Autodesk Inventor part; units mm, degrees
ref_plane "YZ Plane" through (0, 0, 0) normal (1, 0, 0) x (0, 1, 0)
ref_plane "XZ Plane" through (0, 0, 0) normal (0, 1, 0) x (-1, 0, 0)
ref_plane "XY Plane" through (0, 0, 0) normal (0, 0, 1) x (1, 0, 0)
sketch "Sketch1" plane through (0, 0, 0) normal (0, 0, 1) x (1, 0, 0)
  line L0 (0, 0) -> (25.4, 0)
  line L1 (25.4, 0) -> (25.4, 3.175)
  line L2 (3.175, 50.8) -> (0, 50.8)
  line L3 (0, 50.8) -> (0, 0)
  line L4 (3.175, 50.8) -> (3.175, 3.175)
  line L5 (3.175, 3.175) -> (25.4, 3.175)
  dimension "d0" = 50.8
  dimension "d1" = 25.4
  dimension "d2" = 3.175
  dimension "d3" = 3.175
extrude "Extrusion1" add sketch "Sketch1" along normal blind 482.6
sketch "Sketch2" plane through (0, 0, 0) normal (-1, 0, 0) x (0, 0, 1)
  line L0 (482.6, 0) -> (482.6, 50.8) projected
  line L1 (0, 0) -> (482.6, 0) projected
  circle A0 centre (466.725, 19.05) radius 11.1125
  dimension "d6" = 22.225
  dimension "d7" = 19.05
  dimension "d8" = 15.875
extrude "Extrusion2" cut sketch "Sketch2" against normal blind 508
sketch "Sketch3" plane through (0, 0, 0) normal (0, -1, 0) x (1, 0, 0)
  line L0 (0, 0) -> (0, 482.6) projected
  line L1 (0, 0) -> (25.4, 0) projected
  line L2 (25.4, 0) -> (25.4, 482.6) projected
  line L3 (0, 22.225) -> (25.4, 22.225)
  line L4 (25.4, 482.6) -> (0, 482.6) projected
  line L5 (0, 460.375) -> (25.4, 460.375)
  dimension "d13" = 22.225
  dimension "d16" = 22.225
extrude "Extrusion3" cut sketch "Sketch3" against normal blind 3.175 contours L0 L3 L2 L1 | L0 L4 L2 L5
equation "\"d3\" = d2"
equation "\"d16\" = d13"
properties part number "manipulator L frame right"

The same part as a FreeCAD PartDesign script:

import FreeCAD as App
import Part
import Sketcher
from FreeCAD import Vector
Q = App.Units.Quantity

doc = App.newDocument("Part")
body = doc.addObject("PartDesign::Body", "Body")

sketch1 = body.newObject("Sketcher::SketchObject", "Sketch")
sketch1.AttachmentSupport = (doc.getObject("XY_Plane"), [""])
sketch1.MapMode = "FlatFace"
sketch1.addGeometry(Part.LineSegment(Vector(0, 50.8, 0), Vector(0, 0, 0)), False)
sketch1.addGeometry(Part.LineSegment(Vector(0, 0, 0), Vector(25.4, 0, 0)), False)
sketch1.addGeometry(Part.LineSegment(Vector(25.4, 0, 0), Vector(25.4, 3.2, 0)), False)
sketch1.addGeometry(Part.LineSegment(Vector(25.4, 3.2, 0), Vector(3.2, 3.2, 0)), False)
sketch1.addGeometry(Part.LineSegment(Vector(3.2, 3.2, 0), Vector(3.2, 50.8, 0)), False)
sketch1.addGeometry(Part.LineSegment(Vector(3.2, 50.8, 0), Vector(0, 50.8, 0)), False)
sketch1.addConstraint(Sketcher.Constraint("Coincident", 0, 2, 1, 1))
sketch1.addConstraint(Sketcher.Constraint("Coincident", 1, 2, 2, 1))
sketch1.addConstraint(Sketcher.Constraint("Coincident", 2, 2, 3, 1))
sketch1.addConstraint(Sketcher.Constraint("Coincident", 3, 2, 4, 1))
sketch1.addConstraint(Sketcher.Constraint("Coincident", 4, 2, 5, 1))
sketch1.addConstraint(Sketcher.Constraint("Coincident", 5, 2, 0, 1))
sketch1.addConstraint(Sketcher.Constraint("Vertical", 0))
sketch1.addConstraint(Sketcher.Constraint("Horizontal", 1))
sketch1.addConstraint(Sketcher.Constraint("Vertical", 2))
sketch1.addConstraint(Sketcher.Constraint("Horizontal", 3))
sketch1.addConstraint(Sketcher.Constraint("Vertical", 4))
sketch1.addConstraint(Sketcher.Constraint("Horizontal", 5))
sketch1.addConstraint(Sketcher.Constraint("Coincident", 0, 2, -1, 1))
sketch1.addConstraint(Sketcher.Constraint("Equal", 5, 2))
sketch1.addConstraint(Sketcher.Constraint("DistanceX", 1, 1, 1, 2, Q("1 in")))
sketch1.addConstraint(Sketcher.Constraint("DistanceY", 0, 2, 0, 1, Q("2 in")))
sketch1.addConstraint(Sketcher.Constraint("DistanceX", 5, 2, 5, 1, Q("0.125 in")))
pad1 = body.newObject("PartDesign::Pad", "Pad")
pad1.Profile = sketch1
pad1.Length = Q("19 in")

sketch2 = body.newObject("Sketcher::SketchObject", "Sketch001")
sketch2.AttachmentSupport = (doc.getObject("YZ_Plane"), [""])
sketch2.MapMode = "FlatFace"
sketch2.addGeometry(Part.Circle(Vector(19, 467, 0), Vector(0, 0, 1), 11), False)
sketch2.addConstraint(Sketcher.Constraint("Diameter", 0, Q("0.875 in")))
sketch2.addConstraint(Sketcher.Constraint("DistanceX", -1, 1, 0, 3, Q("0.75 in")))
sketch2.addConstraint(Sketcher.Constraint("DistanceY", -1, 1, 0, 3, Q("18.375 in")))
pocket1 = body.newObject("PartDesign::Pocket", "Pocket")
pocket1.Profile = sketch2
pocket1.Length = Q("20 in")
pocket1.Reversed = True

sketch3 = body.newObject("Sketcher::SketchObject", "Sketch002")
sketch3.AttachmentSupport = (doc.getObject("XZ_Plane"), [""])
sketch3.MapMode = "FlatFace"
sketch3.addGeometry(Part.LineSegment(Vector(0, 22, 0), Vector(0, 0, 0)), False)
sketch3.addGeometry(Part.LineSegment(Vector(0, 0, 0), Vector(25, 0, 0)), False)
sketch3.addGeometry(Part.LineSegment(Vector(25, 0, 0), Vector(25, 22, 0)), False)
sketch3.addGeometry(Part.LineSegment(Vector(25, 22, 0), Vector(0, 22, 0)), False)
sketch3.addGeometry(Part.LineSegment(Vector(0, 483, 0), Vector(0, 460, 0)), False)
sketch3.addGeometry(Part.LineSegment(Vector(0, 460, 0), Vector(25, 460, 0)), False)
sketch3.addGeometry(Part.LineSegment(Vector(25, 460, 0), Vector(25, 483, 0)), False)
sketch3.addGeometry(Part.LineSegment(Vector(25, 483, 0), Vector(0, 483, 0)), False)
sketch3.addConstraint(Sketcher.Constraint("Coincident", 0, 2, 1, 1))
sketch3.addConstraint(Sketcher.Constraint("Coincident", 1, 2, 2, 1))
sketch3.addConstraint(Sketcher.Constraint("Coincident", 2, 2, 3, 1))
sketch3.addConstraint(Sketcher.Constraint("Coincident", 3, 2, 0, 1))
sketch3.addConstraint(Sketcher.Constraint("Coincident", 4, 2, 5, 1))
sketch3.addConstraint(Sketcher.Constraint("Coincident", 5, 2, 6, 1))
sketch3.addConstraint(Sketcher.Constraint("Coincident", 6, 2, 7, 1))
sketch3.addConstraint(Sketcher.Constraint("Coincident", 7, 2, 4, 1))
sketch3.addConstraint(Sketcher.Constraint("Vertical", 0))
sketch3.addConstraint(Sketcher.Constraint("Horizontal", 1))
sketch3.addConstraint(Sketcher.Constraint("Vertical", 2))
sketch3.addConstraint(Sketcher.Constraint("Horizontal", 3))
sketch3.addConstraint(Sketcher.Constraint("Vertical", 4))
sketch3.addConstraint(Sketcher.Constraint("Horizontal", 5))
sketch3.addConstraint(Sketcher.Constraint("Vertical", 6))
sketch3.addConstraint(Sketcher.Constraint("Horizontal", 7))
sketch3.addConstraint(Sketcher.Constraint("Coincident", 0, 2, -1, 1))
sketch3.addConstraint(Sketcher.Constraint("PointOnObject", 4, 2, -2))
sketch3.addConstraint(Sketcher.Constraint("Vertical", 2, 2, 5, 2))
sketch3.addConstraint(Sketcher.Constraint("Equal", 2, 4))
sketch3.addConstraint(Sketcher.Constraint("DistanceX", 1, 1, 1, 2, Q("1 in")))
sketch3.addConstraint(Sketcher.Constraint("DistanceY", 0, 2, 0, 1, Q("0.875 in")))
sketch3.addConstraint(Sketcher.Constraint("DistanceY", -1, 1, 6, 2, Q("19 in")))
pocket2 = body.newObject("PartDesign::Pocket", "Pocket001")
pocket2.Profile = sketch3
pocket2.Length = Q("0.125 in")

doc.recompute()
